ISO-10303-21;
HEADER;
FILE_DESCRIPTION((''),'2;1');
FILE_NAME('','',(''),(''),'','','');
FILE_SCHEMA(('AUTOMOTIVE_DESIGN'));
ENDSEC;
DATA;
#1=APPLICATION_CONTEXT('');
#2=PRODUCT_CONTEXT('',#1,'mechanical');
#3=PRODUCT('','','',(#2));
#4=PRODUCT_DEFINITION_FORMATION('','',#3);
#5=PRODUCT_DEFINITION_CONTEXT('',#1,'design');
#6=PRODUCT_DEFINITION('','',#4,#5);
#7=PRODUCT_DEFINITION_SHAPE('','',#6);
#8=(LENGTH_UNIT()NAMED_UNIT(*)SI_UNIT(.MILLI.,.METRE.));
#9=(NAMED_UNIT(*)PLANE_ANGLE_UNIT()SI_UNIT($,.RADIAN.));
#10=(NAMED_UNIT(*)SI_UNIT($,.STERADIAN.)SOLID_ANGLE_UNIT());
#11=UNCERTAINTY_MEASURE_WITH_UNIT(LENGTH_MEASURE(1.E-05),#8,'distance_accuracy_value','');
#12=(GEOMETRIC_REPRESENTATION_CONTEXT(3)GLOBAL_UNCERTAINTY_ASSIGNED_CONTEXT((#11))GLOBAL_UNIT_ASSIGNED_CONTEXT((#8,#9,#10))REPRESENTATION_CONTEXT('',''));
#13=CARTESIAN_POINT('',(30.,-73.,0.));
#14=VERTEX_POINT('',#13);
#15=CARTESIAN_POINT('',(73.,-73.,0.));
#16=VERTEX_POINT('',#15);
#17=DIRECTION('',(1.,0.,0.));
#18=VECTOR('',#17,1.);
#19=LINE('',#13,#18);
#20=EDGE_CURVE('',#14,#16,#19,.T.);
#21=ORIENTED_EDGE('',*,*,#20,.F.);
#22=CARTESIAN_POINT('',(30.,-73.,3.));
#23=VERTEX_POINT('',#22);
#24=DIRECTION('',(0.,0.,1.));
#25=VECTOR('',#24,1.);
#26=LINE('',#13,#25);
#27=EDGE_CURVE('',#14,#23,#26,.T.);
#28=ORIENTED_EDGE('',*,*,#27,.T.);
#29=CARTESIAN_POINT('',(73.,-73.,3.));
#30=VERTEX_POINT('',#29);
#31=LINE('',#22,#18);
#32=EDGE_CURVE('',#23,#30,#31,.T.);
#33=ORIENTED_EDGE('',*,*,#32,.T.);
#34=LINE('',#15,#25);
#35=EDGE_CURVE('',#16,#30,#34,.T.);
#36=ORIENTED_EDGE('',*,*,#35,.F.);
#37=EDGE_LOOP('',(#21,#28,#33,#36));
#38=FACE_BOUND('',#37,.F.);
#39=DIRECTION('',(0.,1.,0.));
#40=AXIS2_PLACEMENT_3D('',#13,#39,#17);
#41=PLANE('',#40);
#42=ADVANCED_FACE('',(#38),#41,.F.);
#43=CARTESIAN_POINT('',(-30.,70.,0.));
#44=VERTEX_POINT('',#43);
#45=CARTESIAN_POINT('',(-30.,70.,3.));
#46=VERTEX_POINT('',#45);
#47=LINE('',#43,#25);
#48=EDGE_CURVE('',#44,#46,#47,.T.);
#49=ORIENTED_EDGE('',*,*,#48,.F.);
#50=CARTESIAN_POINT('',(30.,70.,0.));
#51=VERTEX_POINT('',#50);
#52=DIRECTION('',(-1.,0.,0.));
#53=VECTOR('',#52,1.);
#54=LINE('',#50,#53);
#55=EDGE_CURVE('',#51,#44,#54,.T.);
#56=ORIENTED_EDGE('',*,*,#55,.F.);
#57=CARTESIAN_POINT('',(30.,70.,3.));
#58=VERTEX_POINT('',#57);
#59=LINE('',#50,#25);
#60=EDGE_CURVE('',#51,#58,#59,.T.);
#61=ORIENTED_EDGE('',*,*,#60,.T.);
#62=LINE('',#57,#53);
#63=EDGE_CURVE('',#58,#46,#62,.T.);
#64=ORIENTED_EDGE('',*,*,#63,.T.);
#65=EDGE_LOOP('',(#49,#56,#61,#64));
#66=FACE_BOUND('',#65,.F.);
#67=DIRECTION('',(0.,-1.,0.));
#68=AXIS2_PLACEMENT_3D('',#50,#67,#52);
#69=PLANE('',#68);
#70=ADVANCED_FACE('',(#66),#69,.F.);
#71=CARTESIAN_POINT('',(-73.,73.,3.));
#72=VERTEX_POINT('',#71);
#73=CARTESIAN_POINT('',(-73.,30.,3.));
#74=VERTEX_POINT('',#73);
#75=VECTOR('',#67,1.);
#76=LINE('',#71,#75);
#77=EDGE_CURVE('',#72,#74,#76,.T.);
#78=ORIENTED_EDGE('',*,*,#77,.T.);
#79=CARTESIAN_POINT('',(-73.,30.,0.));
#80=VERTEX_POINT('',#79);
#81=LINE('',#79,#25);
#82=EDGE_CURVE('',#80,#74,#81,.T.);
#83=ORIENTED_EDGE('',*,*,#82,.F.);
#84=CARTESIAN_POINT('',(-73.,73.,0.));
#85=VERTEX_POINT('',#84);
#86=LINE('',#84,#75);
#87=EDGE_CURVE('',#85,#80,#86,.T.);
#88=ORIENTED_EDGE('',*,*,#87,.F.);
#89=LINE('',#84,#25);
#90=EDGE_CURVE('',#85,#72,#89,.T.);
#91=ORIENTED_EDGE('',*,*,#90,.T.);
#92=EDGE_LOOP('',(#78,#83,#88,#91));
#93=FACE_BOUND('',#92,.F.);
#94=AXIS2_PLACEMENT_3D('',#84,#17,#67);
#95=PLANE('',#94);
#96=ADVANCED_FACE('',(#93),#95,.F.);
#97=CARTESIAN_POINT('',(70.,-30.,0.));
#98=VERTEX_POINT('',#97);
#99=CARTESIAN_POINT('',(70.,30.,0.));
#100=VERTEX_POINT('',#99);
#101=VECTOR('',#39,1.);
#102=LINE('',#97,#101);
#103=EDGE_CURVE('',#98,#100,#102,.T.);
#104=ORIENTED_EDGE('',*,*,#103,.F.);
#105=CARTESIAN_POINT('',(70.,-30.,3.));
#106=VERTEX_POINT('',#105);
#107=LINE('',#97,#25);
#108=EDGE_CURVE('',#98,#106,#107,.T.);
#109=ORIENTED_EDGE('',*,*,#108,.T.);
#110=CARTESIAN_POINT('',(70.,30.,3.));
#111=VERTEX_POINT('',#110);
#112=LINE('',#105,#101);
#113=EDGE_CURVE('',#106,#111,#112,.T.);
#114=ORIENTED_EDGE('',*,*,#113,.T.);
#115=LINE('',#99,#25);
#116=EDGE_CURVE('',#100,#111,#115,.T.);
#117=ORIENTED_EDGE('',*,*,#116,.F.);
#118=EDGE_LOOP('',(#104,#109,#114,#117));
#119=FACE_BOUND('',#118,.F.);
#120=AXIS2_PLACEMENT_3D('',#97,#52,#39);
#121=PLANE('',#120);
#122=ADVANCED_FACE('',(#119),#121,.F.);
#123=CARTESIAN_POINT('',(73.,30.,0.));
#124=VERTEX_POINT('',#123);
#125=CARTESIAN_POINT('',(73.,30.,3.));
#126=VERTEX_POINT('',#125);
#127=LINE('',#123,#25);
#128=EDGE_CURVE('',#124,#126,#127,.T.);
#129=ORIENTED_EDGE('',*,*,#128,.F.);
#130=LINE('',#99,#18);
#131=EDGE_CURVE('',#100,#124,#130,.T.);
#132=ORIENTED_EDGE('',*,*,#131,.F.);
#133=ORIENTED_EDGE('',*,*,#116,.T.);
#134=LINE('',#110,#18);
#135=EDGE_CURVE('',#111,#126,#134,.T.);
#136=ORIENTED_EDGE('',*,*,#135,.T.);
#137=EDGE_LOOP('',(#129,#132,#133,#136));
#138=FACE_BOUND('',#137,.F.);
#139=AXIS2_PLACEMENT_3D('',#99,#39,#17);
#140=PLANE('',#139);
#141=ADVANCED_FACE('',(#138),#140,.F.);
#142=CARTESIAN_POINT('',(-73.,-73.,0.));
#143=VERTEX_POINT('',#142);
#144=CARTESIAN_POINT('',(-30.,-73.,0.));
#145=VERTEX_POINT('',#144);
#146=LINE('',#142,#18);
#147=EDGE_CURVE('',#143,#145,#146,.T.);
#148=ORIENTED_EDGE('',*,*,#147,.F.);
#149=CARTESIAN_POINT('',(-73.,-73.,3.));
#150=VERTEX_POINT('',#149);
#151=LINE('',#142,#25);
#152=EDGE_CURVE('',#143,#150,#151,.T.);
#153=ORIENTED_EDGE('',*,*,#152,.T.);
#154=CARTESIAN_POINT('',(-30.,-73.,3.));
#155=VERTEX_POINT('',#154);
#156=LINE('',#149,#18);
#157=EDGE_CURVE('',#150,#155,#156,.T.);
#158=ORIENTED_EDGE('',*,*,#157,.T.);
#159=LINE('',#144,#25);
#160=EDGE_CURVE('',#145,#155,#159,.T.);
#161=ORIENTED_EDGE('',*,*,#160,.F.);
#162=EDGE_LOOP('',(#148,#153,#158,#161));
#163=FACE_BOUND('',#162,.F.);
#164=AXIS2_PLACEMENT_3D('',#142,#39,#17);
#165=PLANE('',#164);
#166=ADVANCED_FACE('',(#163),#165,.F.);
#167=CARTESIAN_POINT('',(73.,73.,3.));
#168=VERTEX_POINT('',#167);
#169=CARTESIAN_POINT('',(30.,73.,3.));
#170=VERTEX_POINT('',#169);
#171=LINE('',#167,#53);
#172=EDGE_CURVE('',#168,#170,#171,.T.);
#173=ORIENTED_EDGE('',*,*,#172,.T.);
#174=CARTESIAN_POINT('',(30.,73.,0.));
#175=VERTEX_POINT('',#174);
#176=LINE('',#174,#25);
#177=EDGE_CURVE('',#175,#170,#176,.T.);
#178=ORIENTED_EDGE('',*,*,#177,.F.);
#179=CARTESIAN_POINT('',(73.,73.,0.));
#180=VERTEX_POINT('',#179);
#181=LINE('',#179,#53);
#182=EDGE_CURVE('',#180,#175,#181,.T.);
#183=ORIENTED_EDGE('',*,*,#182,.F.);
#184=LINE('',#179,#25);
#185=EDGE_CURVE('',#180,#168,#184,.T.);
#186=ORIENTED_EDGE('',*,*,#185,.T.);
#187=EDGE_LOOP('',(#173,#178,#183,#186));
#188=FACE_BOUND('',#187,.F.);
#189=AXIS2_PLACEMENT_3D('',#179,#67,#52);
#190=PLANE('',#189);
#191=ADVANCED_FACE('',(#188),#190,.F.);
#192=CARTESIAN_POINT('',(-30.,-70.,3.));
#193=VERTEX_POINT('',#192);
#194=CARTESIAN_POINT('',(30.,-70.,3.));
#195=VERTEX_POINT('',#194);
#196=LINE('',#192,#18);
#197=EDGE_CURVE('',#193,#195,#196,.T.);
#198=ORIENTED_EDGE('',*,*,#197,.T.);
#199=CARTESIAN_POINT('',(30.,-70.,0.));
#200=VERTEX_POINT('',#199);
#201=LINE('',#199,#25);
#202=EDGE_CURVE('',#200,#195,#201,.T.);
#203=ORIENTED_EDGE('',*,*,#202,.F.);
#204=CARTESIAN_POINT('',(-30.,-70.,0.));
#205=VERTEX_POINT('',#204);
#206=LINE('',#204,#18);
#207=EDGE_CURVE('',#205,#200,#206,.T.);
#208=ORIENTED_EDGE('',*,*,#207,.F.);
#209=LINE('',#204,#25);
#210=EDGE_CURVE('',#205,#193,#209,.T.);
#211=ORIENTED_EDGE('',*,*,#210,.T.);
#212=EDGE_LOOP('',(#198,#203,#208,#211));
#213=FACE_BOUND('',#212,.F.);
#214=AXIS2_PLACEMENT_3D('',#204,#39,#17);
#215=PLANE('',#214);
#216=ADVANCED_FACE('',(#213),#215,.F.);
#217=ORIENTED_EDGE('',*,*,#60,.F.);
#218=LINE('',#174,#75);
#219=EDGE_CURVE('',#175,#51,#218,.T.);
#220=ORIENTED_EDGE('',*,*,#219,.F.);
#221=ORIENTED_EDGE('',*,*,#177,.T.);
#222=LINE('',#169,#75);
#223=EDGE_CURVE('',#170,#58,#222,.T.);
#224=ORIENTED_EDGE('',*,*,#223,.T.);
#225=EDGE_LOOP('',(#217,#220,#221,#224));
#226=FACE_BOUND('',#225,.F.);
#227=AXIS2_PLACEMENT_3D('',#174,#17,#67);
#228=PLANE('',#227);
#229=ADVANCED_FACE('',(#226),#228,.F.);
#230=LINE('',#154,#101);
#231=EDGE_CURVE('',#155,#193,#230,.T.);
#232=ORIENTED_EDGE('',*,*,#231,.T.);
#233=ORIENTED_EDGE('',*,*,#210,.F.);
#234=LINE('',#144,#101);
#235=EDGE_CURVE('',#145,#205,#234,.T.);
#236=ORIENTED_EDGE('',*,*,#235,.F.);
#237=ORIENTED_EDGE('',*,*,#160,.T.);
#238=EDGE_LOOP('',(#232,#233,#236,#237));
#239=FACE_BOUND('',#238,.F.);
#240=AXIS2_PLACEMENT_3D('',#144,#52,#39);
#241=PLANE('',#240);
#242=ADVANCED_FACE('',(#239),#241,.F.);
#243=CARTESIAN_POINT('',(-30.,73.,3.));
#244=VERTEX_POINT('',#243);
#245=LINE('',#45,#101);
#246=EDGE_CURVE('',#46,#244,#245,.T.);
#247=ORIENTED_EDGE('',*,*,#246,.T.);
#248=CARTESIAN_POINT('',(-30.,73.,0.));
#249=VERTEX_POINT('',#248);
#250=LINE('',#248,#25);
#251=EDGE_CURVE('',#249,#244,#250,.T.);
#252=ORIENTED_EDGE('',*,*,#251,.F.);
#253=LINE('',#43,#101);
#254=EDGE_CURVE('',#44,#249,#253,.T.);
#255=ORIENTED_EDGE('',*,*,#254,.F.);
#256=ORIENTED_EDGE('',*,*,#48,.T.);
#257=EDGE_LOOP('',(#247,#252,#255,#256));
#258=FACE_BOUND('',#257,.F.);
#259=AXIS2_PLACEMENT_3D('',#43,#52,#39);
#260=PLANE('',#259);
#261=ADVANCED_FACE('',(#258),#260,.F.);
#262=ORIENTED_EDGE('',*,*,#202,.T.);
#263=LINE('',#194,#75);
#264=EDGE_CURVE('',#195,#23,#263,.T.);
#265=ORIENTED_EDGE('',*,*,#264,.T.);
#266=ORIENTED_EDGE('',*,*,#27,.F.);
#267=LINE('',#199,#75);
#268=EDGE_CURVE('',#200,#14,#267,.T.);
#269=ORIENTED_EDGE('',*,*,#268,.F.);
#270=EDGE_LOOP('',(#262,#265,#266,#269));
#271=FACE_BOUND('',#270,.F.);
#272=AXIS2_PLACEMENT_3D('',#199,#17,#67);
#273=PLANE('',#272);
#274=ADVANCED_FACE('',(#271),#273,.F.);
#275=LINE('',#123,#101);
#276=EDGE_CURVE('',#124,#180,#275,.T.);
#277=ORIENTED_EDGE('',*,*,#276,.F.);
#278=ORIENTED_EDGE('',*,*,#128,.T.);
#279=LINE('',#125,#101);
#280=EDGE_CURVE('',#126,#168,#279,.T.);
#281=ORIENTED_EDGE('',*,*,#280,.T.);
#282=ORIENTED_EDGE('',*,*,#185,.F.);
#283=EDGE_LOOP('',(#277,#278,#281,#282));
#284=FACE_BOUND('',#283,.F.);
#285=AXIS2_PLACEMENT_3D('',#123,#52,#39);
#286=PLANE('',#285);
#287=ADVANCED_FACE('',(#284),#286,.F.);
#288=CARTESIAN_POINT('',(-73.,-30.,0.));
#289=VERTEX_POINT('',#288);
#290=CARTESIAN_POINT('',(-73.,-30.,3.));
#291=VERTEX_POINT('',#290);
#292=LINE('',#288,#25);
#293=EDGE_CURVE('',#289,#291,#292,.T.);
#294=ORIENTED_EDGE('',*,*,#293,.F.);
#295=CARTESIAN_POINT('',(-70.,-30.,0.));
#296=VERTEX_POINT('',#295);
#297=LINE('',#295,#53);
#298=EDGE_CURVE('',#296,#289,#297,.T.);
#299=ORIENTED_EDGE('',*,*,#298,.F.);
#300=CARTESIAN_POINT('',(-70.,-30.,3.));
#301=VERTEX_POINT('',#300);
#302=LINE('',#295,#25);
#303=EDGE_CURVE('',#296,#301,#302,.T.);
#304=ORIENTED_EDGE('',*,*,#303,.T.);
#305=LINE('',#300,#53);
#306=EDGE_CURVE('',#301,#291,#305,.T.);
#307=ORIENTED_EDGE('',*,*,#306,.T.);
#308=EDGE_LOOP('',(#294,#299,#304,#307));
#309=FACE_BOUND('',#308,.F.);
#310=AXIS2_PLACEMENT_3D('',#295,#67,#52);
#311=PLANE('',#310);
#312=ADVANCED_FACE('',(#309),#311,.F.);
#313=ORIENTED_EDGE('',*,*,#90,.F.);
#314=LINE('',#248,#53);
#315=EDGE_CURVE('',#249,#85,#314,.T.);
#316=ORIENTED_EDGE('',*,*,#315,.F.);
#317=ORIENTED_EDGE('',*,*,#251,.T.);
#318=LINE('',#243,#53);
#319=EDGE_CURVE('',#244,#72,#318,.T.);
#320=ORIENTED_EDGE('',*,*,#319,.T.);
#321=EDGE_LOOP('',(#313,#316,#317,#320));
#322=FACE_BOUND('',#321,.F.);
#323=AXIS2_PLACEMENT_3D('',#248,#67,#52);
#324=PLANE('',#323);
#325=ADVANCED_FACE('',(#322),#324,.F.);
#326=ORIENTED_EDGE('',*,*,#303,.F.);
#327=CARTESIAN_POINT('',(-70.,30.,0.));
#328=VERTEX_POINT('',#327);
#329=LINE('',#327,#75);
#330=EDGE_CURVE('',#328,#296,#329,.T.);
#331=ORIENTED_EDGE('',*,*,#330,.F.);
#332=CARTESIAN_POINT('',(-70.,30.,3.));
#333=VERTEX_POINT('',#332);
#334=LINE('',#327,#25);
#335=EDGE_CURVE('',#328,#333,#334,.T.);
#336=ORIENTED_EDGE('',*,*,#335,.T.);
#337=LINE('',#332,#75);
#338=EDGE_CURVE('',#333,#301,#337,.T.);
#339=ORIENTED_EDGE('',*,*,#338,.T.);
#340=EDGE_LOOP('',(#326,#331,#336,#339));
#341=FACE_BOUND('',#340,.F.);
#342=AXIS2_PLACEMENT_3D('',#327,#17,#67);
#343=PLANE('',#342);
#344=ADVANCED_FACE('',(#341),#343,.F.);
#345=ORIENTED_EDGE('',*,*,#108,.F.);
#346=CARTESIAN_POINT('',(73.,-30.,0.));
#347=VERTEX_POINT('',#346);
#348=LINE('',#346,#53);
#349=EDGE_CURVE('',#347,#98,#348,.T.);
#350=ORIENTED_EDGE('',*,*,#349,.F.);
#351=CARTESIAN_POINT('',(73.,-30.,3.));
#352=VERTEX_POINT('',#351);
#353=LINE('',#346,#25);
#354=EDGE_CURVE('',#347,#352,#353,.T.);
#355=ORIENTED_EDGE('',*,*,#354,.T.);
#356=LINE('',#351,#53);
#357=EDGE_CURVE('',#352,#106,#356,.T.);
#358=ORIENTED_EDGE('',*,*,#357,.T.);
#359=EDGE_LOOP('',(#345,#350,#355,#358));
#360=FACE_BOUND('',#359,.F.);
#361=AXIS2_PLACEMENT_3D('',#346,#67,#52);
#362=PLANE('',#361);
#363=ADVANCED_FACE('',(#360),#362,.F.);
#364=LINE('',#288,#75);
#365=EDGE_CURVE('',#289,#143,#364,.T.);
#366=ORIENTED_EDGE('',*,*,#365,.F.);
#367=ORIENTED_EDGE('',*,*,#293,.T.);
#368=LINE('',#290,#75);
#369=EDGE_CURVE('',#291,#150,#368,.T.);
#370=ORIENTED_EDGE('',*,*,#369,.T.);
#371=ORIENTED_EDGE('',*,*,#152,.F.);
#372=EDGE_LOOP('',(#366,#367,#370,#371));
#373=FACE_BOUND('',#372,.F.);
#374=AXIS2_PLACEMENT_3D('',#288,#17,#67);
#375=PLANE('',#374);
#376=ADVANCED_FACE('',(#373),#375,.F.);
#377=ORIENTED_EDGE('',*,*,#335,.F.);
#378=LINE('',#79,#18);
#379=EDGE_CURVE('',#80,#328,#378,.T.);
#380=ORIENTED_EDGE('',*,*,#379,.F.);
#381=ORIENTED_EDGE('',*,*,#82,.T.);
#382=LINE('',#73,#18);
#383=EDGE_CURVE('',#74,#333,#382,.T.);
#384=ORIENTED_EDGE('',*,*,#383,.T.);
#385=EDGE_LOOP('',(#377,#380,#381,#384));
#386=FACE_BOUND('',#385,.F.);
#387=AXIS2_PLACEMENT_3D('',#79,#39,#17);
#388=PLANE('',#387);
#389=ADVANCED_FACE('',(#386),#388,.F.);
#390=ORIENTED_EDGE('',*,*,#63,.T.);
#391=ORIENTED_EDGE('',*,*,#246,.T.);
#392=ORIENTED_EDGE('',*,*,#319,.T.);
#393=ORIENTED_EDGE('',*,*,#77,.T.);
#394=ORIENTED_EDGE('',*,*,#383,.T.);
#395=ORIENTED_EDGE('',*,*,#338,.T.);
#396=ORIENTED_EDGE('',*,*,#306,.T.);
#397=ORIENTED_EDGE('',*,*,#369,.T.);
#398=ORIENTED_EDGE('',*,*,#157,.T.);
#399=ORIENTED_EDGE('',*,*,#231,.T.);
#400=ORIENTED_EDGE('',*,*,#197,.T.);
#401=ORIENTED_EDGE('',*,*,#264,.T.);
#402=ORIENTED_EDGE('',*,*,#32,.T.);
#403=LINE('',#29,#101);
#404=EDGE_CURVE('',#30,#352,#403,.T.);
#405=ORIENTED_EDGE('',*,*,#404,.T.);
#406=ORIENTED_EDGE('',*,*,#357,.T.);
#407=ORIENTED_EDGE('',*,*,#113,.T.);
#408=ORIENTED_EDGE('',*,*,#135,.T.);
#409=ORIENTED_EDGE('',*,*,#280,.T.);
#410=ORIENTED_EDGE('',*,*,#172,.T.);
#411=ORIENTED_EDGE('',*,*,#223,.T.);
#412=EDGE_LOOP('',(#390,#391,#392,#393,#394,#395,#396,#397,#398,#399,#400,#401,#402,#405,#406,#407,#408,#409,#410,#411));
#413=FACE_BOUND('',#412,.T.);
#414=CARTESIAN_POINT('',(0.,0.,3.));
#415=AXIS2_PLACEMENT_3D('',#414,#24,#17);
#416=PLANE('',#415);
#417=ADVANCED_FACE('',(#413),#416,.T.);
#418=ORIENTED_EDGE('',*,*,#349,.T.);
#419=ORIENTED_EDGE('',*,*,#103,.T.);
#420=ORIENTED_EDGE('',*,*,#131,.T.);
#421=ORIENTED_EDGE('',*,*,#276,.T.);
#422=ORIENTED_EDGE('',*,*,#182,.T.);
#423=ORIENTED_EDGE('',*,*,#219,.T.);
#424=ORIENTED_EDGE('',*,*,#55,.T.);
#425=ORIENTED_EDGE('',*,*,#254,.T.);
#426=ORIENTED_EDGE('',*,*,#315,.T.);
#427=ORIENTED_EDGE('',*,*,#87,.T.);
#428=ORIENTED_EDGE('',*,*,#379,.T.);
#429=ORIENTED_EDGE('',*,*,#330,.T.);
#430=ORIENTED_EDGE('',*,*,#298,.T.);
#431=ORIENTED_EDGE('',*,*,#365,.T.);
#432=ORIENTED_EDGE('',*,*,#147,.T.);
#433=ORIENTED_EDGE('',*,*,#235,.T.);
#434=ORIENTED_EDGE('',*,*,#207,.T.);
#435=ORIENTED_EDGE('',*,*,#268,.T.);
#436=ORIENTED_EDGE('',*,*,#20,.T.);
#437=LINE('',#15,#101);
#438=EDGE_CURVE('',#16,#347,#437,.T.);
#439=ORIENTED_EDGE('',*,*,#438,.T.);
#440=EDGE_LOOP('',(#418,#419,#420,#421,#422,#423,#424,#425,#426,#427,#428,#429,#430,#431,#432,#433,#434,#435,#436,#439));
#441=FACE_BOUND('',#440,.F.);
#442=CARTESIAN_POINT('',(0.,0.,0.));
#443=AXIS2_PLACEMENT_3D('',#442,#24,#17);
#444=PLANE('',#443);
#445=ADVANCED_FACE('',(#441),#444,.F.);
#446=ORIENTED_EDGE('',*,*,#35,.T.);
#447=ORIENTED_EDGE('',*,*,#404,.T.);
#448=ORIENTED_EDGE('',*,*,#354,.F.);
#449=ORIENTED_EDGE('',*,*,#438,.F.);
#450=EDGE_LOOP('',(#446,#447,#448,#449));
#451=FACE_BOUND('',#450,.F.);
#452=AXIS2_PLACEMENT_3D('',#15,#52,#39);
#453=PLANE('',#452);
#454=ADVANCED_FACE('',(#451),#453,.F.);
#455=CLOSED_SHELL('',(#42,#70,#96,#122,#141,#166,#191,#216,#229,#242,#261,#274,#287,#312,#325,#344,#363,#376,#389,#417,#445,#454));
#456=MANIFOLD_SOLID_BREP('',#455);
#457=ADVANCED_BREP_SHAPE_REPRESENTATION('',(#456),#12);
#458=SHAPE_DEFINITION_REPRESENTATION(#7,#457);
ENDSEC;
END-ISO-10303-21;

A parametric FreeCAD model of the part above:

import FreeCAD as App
import Part
import Sketcher

V = App.Vector
Q = App.Units.Quantity

doc = App.newDocument("Part")
body = doc.addObject("PartDesign::Body", "Body")

# Sketch on XY plane
sketch1 = doc.addObject("Sketcher::SketchObject", "Sketch")
body.addObject(sketch1)
sketch1.AttachmentSupport = (doc.XY_Plane, [""])
sketch1.MapMode = "FlatFace"
sketch1.addGeometry([
    Part.LineSegment(V(30, -73, 0), V(73, -73, 0)),  # 0
    Part.LineSegment(V(73, -73, 0), V(73, -30, 0)),  # 1
    Part.LineSegment(V(73, -30, 0), V(70, -30, 0)),  # 2
    Part.LineSegment(V(70, -30, 0), V(70, 30, 0)),  # 3
    Part.LineSegment(V(70, 30, 0), V(73, 30, 0)),  # 4
    Part.LineSegment(V(73, 30, 0), V(73, 73, 0)),  # 5
    Part.LineSegment(V(73, 73, 0), V(30, 73, 0)),  # 6
    Part.LineSegment(V(30, 73, 0), V(30, 70, 0)),  # 7
    Part.LineSegment(V(30, 70, 0), V(-30, 70, 0)),  # 8
    Part.LineSegment(V(-30, 70, 0), V(-30, 73, 0)),  # 9
    Part.LineSegment(V(-30, 73, 0), V(-73, 73, 0)),  # 10
    Part.LineSegment(V(-73, 73, 0), V(-73, 30, 0)),  # 11
    Part.LineSegment(V(-73, 30, 0), V(-70, 30, 0)),  # 12
    Part.LineSegment(V(-70, 30, 0), V(-70, -30, 0)),  # 13
    Part.LineSegment(V(-70, -30, 0), V(-73, -30, 0)),  # 14
    Part.LineSegment(V(-73, -30, 0), V(-73, -73, 0)),  # 15
    Part.LineSegment(V(-73, -73, 0), V(-30, -73, 0)),  # 16
    Part.LineSegment(V(-30, -73, 0), V(-30, -70, 0)),  # 17
    Part.LineSegment(V(-30, -70, 0), V(30, -70, 0)),  # 18
    Part.LineSegment(V(30, -70, 0), V(30, -73, 0)),  # 19
], False)
sketch1.addConstraint([
    Sketcher.Constraint("Coincident", 0, 2, 1, 1),
    Sketcher.Constraint("Coincident", 1, 2, 2, 1),
    Sketcher.Constraint("Coincident", 2, 2, 3, 1),
    Sketcher.Constraint("Coincident", 3, 2, 4, 1),
    Sketcher.Constraint("Coincident", 4, 2, 5, 1),
    Sketcher.Constraint("Coincident", 5, 2, 6, 1),
    Sketcher.Constraint("Coincident", 6, 2, 7, 1),
    Sketcher.Constraint("Coincident", 7, 2, 8, 1),
    Sketcher.Constraint("Coincident", 8, 2, 9, 1),
    Sketcher.Constraint("Coincident", 9, 2, 10, 1),
    Sketcher.Constraint("Coincident", 10, 2, 11, 1),
    Sketcher.Constraint("Coincident", 11, 2, 12, 1),
    Sketcher.Constraint("Coincident", 12, 2, 13, 1),
    Sketcher.Constraint("Coincident", 13, 2, 14, 1),
    Sketcher.Constraint("Coincident", 14, 2, 15, 1),
    Sketcher.Constraint("Coincident", 15, 2, 16, 1),
    Sketcher.Constraint("Coincident", 16, 2, 17, 1),
    Sketcher.Constraint("Coincident", 17, 2, 18, 1),
    Sketcher.Constraint("Coincident", 18, 2, 19, 1),
    Sketcher.Constraint("Coincident", 19, 2, 0, 1),
    Sketcher.Constraint("Horizontal", 0),
    Sketcher.Constraint("Vertical", 1),
    Sketcher.Constraint("Horizontal", 2),
    Sketcher.Constraint("Vertical", 3),
    Sketcher.Constraint("Horizontal", 4),
    Sketcher.Constraint("Vertical", 5),
    Sketcher.Constraint("Horizontal", 6),
    Sketcher.Constraint("Vertical", 7),
    Sketcher.Constraint("Horizontal", 8),
    Sketcher.Constraint("Vertical", 9),
    Sketcher.Constraint("Horizontal", 10),
    Sketcher.Constraint("Vertical", 11),
    Sketcher.Constraint("Horizontal", 12),
    Sketcher.Constraint("Vertical", 13),
    Sketcher.Constraint("Horizontal", 14),
    Sketcher.Constraint("Vertical", 15),
    Sketcher.Constraint("Horizontal", 16),
    Sketcher.Constraint("Vertical", 17),
    Sketcher.Constraint("Horizontal", 18),
    Sketcher.Constraint("Vertical", 19),
    Sketcher.Constraint("Symmetric", 0, 2, 10, 2, -1, 1),
    Sketcher.Constraint("Symmetric", 2, 2, 12, 2, -1, 1),
    Sketcher.Constraint("Symmetric", 4, 2, 14, 2, -1, 1),
    Sketcher.Constraint("Symmetric", 6, 2, 16, 2, -1, 1),
    Sketcher.Constraint("Symmetric", 8, 2, 18, 2, -1, 1),
    Sketcher.Constraint("Symmetric", 6, 2, 9, 2, -2),
    Sketcher.Constraint("Symmetric", 4, 2, 11, 2, -2),
    Sketcher.Constraint("Equal", 16, 1),
    Sketcher.Constraint("Equal", 18, 3),
    Sketcher.Constraint("Equal", 14, 7),
    Sketcher.Constraint("DistanceX", 0, 1, 0, 2, Q("43 mm")),
    Sketcher.Constraint("DistanceX", 2, 2, 2, 1, Q("3 mm")),
    Sketcher.Constraint("DistanceX", 8, 2, 8, 1, Q("60 mm")),
])
pad1 = doc.addObject("PartDesign::Pad", "Pad")
body.addObject(pad1)
pad1.Profile = sketch1
pad1.Length = 3

doc.recompute()
